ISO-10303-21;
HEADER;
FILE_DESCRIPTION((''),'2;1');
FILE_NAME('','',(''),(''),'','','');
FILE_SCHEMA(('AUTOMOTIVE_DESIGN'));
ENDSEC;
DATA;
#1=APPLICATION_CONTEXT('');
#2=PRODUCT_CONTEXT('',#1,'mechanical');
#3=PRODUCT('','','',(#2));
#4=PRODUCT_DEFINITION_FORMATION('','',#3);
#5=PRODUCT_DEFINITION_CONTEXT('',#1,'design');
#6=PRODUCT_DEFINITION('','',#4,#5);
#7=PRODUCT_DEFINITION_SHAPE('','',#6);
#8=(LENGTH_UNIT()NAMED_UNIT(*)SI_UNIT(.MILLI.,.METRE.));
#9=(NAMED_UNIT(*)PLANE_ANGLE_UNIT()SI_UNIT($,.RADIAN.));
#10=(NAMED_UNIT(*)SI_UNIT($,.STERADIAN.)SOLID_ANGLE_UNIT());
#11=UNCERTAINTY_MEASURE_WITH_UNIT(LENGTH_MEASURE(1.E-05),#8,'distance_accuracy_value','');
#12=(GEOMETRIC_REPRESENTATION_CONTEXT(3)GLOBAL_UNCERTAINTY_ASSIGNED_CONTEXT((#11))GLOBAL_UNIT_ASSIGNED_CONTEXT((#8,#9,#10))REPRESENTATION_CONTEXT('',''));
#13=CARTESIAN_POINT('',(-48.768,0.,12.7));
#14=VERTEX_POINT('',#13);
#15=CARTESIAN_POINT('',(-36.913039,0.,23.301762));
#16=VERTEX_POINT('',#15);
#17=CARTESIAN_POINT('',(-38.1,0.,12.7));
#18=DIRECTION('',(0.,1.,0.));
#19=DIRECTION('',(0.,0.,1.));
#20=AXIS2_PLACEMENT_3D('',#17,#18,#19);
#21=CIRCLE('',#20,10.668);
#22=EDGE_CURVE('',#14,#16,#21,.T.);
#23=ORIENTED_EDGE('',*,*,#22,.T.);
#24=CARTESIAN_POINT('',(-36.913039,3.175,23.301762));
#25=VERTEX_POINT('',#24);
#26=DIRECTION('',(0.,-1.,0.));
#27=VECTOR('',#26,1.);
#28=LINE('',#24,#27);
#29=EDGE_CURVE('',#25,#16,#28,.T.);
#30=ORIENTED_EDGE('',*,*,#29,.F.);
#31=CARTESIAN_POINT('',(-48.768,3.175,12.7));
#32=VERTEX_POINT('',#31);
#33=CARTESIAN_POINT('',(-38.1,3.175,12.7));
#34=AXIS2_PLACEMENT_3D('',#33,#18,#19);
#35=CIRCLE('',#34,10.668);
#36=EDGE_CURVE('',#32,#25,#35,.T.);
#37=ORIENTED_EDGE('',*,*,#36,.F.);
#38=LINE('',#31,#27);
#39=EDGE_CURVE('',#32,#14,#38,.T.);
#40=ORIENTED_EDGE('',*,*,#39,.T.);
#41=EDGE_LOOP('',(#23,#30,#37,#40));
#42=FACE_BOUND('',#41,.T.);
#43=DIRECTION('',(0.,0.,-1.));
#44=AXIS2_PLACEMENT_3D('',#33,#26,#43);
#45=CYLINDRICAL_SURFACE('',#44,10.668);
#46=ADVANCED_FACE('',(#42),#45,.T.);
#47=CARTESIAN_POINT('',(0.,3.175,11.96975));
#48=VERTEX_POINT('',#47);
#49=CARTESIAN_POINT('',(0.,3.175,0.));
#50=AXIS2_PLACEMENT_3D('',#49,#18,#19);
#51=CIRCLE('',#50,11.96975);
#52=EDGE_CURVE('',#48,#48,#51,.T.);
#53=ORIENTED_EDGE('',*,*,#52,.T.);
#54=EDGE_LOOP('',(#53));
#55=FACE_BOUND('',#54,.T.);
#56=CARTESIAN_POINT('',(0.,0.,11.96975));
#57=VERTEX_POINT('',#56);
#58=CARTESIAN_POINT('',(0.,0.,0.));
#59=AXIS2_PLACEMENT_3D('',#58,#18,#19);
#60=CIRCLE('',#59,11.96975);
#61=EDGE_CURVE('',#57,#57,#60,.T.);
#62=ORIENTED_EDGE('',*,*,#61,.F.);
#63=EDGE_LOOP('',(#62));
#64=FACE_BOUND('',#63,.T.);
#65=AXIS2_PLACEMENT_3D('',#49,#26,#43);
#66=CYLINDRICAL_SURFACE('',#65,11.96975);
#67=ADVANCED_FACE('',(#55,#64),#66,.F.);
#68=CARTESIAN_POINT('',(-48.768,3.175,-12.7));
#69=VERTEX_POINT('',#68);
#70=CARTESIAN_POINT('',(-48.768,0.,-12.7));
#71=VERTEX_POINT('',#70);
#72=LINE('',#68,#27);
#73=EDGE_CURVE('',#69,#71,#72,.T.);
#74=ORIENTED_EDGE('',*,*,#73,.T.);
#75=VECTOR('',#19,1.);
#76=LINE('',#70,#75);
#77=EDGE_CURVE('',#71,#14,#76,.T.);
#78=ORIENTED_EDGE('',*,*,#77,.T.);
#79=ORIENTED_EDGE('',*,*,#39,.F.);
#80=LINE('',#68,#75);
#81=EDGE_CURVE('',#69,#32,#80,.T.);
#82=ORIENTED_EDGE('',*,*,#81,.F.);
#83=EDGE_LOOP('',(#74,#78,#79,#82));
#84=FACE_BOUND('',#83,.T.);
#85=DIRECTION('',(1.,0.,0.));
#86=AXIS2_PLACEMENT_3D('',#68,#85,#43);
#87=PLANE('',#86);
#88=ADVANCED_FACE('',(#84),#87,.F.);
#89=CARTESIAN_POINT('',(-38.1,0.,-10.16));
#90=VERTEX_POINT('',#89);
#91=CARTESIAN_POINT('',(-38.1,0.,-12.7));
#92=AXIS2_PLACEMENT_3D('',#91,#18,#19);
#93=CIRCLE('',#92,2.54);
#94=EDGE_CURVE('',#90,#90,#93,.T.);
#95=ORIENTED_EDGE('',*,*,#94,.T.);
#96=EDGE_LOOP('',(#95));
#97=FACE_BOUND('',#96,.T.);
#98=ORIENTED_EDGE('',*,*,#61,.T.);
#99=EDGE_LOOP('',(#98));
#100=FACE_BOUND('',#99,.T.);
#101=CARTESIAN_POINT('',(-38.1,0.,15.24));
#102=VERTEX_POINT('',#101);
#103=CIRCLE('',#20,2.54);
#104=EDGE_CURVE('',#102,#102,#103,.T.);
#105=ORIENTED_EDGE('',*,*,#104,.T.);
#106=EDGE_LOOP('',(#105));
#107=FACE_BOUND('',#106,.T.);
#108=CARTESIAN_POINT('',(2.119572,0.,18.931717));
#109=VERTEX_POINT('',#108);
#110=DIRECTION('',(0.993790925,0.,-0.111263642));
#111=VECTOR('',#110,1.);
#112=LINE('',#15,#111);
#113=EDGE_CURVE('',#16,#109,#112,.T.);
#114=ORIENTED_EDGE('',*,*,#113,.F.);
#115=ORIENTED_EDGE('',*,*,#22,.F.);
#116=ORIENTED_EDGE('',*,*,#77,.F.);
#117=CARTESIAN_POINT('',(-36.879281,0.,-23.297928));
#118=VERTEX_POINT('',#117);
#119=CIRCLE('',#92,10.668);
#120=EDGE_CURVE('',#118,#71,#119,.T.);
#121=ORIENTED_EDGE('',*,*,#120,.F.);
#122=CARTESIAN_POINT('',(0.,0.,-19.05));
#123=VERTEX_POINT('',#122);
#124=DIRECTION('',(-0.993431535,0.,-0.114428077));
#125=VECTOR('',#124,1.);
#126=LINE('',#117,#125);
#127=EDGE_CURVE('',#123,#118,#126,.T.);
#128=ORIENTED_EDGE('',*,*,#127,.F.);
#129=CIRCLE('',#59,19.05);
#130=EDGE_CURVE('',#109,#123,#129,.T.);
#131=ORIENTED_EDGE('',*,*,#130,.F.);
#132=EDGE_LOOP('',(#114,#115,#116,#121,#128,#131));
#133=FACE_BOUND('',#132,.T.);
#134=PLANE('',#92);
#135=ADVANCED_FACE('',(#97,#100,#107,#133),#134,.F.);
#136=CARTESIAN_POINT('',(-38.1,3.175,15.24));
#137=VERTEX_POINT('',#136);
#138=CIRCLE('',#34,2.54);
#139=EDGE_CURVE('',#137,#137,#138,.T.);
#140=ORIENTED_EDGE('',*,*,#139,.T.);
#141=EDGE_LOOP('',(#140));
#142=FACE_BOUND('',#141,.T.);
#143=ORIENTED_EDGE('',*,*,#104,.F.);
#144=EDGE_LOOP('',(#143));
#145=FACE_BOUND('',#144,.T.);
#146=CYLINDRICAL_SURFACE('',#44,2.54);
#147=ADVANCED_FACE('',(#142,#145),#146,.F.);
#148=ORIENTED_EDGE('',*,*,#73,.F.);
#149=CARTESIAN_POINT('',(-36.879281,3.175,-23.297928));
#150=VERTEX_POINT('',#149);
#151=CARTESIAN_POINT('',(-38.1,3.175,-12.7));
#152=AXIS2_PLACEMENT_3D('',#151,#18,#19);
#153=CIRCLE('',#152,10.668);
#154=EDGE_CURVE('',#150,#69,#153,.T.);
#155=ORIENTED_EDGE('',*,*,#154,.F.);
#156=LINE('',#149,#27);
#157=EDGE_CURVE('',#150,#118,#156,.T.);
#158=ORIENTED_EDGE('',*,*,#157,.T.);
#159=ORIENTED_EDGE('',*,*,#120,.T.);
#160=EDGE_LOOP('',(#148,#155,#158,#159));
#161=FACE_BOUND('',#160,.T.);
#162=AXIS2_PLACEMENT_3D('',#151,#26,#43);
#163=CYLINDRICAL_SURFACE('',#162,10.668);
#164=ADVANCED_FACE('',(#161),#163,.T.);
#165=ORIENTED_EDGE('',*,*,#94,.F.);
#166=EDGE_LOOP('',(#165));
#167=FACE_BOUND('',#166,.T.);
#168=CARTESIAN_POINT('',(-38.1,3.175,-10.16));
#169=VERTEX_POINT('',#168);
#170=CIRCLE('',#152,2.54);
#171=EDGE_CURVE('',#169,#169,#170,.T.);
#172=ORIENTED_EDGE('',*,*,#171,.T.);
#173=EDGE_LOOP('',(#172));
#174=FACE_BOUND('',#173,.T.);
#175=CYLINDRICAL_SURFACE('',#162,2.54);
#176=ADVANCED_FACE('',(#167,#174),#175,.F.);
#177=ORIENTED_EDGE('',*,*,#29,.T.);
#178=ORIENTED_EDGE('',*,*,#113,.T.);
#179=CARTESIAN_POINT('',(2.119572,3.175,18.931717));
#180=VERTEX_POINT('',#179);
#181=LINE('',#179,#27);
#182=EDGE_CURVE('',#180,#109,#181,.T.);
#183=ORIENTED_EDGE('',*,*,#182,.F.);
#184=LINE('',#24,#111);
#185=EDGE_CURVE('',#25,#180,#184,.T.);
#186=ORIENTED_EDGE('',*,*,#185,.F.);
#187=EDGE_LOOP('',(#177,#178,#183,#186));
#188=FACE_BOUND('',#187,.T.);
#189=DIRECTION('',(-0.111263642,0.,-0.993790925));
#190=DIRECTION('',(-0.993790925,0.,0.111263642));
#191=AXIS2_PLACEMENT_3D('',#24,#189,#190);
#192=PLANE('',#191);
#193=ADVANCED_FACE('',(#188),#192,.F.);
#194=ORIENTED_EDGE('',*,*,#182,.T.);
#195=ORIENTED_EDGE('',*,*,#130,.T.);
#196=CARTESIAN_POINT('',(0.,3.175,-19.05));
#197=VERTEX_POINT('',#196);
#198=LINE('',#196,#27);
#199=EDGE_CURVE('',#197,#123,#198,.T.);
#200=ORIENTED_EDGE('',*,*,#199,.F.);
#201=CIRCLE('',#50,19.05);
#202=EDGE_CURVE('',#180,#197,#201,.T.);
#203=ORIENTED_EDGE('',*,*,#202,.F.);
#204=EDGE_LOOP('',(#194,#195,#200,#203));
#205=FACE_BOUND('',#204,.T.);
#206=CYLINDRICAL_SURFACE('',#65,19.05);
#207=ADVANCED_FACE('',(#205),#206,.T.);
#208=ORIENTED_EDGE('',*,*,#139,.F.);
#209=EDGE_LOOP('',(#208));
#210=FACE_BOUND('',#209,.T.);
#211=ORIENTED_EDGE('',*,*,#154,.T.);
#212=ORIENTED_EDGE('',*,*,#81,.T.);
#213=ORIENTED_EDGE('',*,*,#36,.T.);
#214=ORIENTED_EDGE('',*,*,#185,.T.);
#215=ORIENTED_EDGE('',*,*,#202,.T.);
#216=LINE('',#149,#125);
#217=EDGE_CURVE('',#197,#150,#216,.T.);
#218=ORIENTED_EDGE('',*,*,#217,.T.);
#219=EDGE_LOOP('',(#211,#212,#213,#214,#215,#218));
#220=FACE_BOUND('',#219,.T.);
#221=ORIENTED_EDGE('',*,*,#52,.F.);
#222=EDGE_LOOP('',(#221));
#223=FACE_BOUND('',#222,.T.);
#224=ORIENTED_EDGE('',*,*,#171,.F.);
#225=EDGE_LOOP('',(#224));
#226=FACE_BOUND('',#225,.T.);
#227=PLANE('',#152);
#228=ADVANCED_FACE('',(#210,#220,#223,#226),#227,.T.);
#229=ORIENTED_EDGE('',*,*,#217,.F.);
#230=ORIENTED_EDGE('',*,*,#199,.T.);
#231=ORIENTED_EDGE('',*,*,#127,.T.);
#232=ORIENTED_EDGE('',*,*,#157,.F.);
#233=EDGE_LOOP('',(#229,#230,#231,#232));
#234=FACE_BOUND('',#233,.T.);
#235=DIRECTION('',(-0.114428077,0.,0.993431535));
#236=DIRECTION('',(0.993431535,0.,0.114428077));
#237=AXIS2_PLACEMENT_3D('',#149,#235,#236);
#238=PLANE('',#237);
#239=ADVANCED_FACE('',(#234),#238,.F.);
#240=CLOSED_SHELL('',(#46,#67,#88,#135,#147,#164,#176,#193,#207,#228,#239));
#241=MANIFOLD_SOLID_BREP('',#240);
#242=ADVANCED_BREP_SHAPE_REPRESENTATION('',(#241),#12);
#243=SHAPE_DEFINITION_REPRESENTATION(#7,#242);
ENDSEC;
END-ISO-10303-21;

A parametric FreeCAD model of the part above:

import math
import FreeCAD as App
import Part
import Sketcher

V = App.Vector
Q = App.Units.Quantity

doc = App.newDocument("Part")
body = doc.addObject("PartDesign::Body", "Body")

# Sketch on XZ plane
sketch1 = body.newObject("Sketcher::SketchObject", "Sketch")
sketch1.AttachmentSupport = (doc.getObject("XZ_Plane"), [""])
sketch1.MapMode = "FlatFace"
sketch1.addGeometry([
    Part.LineSegment(V(-48.8, -12.7, 0), V(-48.8, 12.7, 0)),  # 0
    Part.ArcOfCircle(Part.Circle(V(-38.1, 12.7, 0), V(0, 0, 1), 10.7), math.radians(84), math.radians(180)),  # 1
    Part.LineSegment(V(-36.9, 23.3, 0), V(2.1, 18.9, 0)),  # 2
    Part.ArcOfCircle(Part.Circle(V(0, 0, 0), V(0, 0, 1), 19.1), math.radians(-90), math.radians(84)),  # 3
    Part.LineSegment(V(0, -19.1, 0), V(-36.9, -23.3, 0)),  # 4
    Part.ArcOfCircle(Part.Circle(V(-38.1, -12.7, 0), V(0, 0, 1), 10.7), math.radians(180), math.radians(277)),  # 5
    Part.Circle(V(-38.1, 12.7, 0), V(0, 0, 1), 2.5),  # 6
    Part.Circle(V(-38.1, -12.7, 0), V(0, 0, 1), 2.5),  # 7
    Part.Circle(V(0, 0, 0), V(0, 0, 1), 12),  # 8
], False)
sketch1.addConstraint([
    Sketcher.Constraint("Tangent", 0, 2, 1, 2),
    Sketcher.Constraint("Tangent", 1, 1, 2, 1),
    Sketcher.Constraint("Tangent", 2, 2, 3, 2),
    Sketcher.Constraint("Coincident", 3, 1, 4, 1),
    Sketcher.Constraint("Tangent", 4, 2, 5, 2),
    Sketcher.Constraint("Tangent", 5, 1, 0, 1),
    Sketcher.Constraint("Vertical", 0),
    Sketcher.Constraint("Coincident", 3, 3, -1, 1),
    Sketcher.Constraint("Coincident", 8, 3, -1, 1),
    Sketcher.Constraint("Coincident", 6, 3, 1, 3),
    Sketcher.Constraint("Coincident", 7, 3, 5, 3),
    Sketcher.Constraint("Equal", 1, 5),
    Sketcher.Constraint("Equal", 6, 7),
    Sketcher.Constraint("PointOnObject", 3, 1, -2),
    Sketcher.Constraint("Diameter", 6, Q("0.2 in")),
    Sketcher.Constraint("DistanceY", 0, 1, 0, 2, Q("1 in")),
    Sketcher.Constraint("Radius", 1, Q("0.42 in")),
    Sketcher.Constraint("Radius", 3, Q("0.75 in")),
    Sketcher.Constraint("Diameter", 8, Q("0.9425 in")),
    Sketcher.Constraint("DistanceX", 1, 3, -1, 1, Q("1.5 in")),
    Sketcher.Constraint("DistanceY", -1, 1, 1, 3, Q("0.5 in")),
])
pad1 = body.newObject("PartDesign::Pad", "Pad")
pad1.Profile = sketch1
pad1.Length = Q("0.125 in")
pad1.Reversed = True

doc.recompute()
